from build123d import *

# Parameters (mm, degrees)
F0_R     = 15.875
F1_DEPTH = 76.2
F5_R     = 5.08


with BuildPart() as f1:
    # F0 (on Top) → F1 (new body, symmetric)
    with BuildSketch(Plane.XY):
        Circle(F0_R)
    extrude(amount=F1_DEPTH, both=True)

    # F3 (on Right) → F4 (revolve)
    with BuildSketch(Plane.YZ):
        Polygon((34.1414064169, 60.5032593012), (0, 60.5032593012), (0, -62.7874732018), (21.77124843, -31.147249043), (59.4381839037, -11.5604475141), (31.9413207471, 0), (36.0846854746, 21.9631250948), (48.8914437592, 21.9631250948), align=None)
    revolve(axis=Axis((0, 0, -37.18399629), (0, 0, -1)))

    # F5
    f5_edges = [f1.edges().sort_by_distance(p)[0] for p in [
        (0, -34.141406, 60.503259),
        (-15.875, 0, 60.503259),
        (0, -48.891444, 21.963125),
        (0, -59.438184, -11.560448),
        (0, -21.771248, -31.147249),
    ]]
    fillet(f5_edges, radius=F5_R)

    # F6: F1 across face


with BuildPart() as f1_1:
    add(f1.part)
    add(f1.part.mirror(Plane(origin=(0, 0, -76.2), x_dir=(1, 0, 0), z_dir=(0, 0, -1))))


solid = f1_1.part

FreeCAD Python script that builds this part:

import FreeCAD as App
import Part
import Sketcher

V = App.Vector
Q = App.Units.Quantity


def edges_at(feature, points):
    """Names of the edges that pass closest to the given points."""
    edges = feature.Shape.Edges
    near = lambda p: min(range(len(edges)), key=lambda i: edges[i].distToShape(Part.Vertex(*p))[0])
    return sorted({f"Edge{near(p) + 1}" for p in points})

doc = App.newDocument("Part")
body = doc.addObject("PartDesign::Body", "Body")

sketch1 = body.newObject("Sketcher::SketchObject", "Sketch")
sketch1.AttachmentSupport = (doc.getObject("XY_Plane"), [""])
sketch1.MapMode = "FlatFace"
sketch1.addGeometry(Part.Circle(V(0, 0, 0), V(0, 0, 1), 15.875), False)
sketch1.addConstraint([
    Sketcher.Constraint("Coincident", 0, 3, -1, 1),
    Sketcher.Constraint("Diameter", 0, Q("1.25 in")),
])
pad1 = body.newObject("PartDesign::Pad", "Pad")
pad1.Profile = sketch1
pad1.Length = Q("6 in")
pad1.Midplane = True

sketch2 = body.newObject("Sketcher::SketchObject", "Sketch001")
sketch2.AttachmentSupport = (doc.getObject("YZ_Plane"), [""])
sketch2.MapMode = "FlatFace"
sketch2.addGeometry([
    Part.LineSegment(V(34.141406, 60.503259, 0), V(0, 60.503259, 0)),
    Part.LineSegment(V(0, 60.503259, 0), V(0, -62.787473, 0)),
    Part.LineSegment(V(0, -62.787473, 0), V(21.771248, -31.147249, 0)),
    Part.LineSegment(V(21.771248, -31.147249, 0), V(59.438184, -11.560448, 0)),
    Part.LineSegment(V(59.438184, -11.560448, 0), V(31.941321, 0, 0)),
    Part.LineSegment(V(31.941321, 0, 0), V(36.084685, 21.963125, 0)),
    Part.LineSegment(V(36.084685, 21.963125, 0), V(48.891444, 21.963125, 0)),
    Part.LineSegment(V(48.891444, 21.963125, 0), V(34.141406, 60.503259, 0)),
], False)
sketch2.addConstraint([
    Sketcher.Constraint("Coincident", 0, 2, 1, 1),
    Sketcher.Constraint("Coincident", 1, 2, 2, 1),
    Sketcher.Constraint("Coincident", 2, 2, 3, 1),
    Sketcher.Constraint("Coincident", 3, 2, 4, 1),
    Sketcher.Constraint("Coincident", 4, 2, 5, 1),
    Sketcher.Constraint("Coincident", 5, 2, 6, 1),
    Sketcher.Constraint("Coincident", 6, 2, 7, 1),
    Sketcher.Constraint("Coincident", 7, 2, 0, 1),
    Sketcher.Constraint("Horizontal", 0),
    Sketcher.Constraint("Vertical", 1),
    Sketcher.Constraint("Horizontal", 6),
    Sketcher.Constraint("PointOnObject", 0, 2, -2),
    Sketcher.Constraint("PointOnObject", 4, 2, -1),
    Sketcher.Constraint("Distance", 4, Q("29.828199 mm")),
    Sketcher.Constraint("DistanceX", 6, 1, 6, 2, Q("12.806758 mm")),
    Sketcher.Constraint("DistanceY", 2, 2, 3, 2, Q("19.586802 mm")),
    Sketcher.Constraint("DistanceX", 5, 2, 3, 2, Q("23.353498 mm")),
    Sketcher.Constraint("DistanceY", 1, 2, 5, 2, Q("84.750598 mm")),
    Sketcher.Constraint("DistanceX", 0, 2, 0, 1, Q("34.141406 mm")),
    Sketcher.Constraint("DistanceY", 1, 2, 1, 1, Q("123.290733 mm")),
    Sketcher.Constraint("DistanceY", -1, 1, 0, 2, Q("60.503259 mm")),
    Sketcher.Constraint("DistanceX", -1, 1, 2, 2, Q("21.771248 mm")),
    Sketcher.Constraint("DistanceY", 2, 2, -1, 1, Q("31.147249 mm")),
    Sketcher.Constraint("DistanceX", -1, 1, 4, 2, Q("31.941321 mm")),
])
revolution = body.newObject("PartDesign::Revolution", "Revolution")
revolution.Profile = sketch2
revolution.ReferenceAxis = (sketch2, ["V_Axis"])
revolution.Angle = 360
doc.recompute()

fillet = body.newObject("PartDesign::Fillet", "Fillet")
fillet.Base = (revolution, edges_at(revolution, [
    (0, -34.141, 60.503),
    (-15.875, 0, 60.503),
    (0, -48.891, 21.963),
    (0, -59.438, -11.56),
    (0, -21.771, -31.147),
]))
fillet.Radius = Q("0.2 in")
body2 = doc.addObject("PartDesign::Body", "Body001")
doc.recompute()

body2.BaseFeature = body
doc.recompute()

mirroring = doc.addObject("Part::Mirroring", "Mirroring")
mirroring.Source = body
mirroring.Base = V(0, 0, -76.2)
mirroring.Normal = V(0, 0, -1)
body3 = doc.addObject("PartDesign::Body", "Body002")
body3.BaseFeature = mirroring
boolean = body2.newObject("PartDesign::Boolean", "Boolean")
boolean.Type = "Fuse"
boolean.addObjects([body3])
doc.recompute()
mirroring.Visibility = False

doc.recompute()
